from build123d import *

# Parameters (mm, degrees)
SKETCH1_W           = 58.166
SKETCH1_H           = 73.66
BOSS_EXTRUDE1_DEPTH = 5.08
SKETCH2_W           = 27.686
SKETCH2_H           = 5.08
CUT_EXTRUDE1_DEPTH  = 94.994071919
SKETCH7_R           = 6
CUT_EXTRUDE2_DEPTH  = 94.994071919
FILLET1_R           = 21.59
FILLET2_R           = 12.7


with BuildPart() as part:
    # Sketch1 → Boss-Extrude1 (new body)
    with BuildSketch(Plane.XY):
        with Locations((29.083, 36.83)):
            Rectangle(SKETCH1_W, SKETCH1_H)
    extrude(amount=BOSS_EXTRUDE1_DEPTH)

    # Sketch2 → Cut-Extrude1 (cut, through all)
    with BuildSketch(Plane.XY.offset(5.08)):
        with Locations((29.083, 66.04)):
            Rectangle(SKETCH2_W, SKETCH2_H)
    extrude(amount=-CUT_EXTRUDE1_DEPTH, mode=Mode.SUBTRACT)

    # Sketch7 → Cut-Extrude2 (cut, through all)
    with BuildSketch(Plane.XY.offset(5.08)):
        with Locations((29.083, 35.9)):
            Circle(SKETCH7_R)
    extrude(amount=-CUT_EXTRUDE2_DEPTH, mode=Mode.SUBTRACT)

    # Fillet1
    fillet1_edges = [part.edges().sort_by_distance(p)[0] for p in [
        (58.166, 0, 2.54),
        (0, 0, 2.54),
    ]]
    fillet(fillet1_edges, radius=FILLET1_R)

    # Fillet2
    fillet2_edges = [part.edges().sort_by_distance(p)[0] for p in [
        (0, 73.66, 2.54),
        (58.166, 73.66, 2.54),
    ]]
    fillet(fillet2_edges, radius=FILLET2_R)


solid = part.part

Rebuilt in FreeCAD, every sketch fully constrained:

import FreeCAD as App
import Part
import Sketcher

V = App.Vector
Q = App.Units.Quantity


def edges_at(feature, points):
    """Names of the edges that pass closest to the given points."""
    edges = feature.Shape.Edges
    near = lambda p: min(range(len(edges)), key=lambda i: edges[i].distToShape(Part.Vertex(*p))[0])
    return sorted({f"Edge{near(p) + 1}" for p in points})


def add_polygon(sketch, points):
    """Adds a closed chain of lines whose ends are joined by coincident constraints."""
    first, n = sketch.GeometryCount, len(points)
    for a, b in zip(points, points[1:] + points[:1]):
        sketch.addGeometry(Part.LineSegment(App.Vector(*a, 0), App.Vector(*b, 0)), False)
    for i in range(n):
        sketch.addConstraint(Sketcher.Constraint("Coincident", first + i, 2, first + (i + 1) % n, 1))

doc = App.newDocument("Part")
body = doc.addObject("PartDesign::Body", "Body")

sketch1 = body.newObject("Sketcher::SketchObject", "Sketch")
sketch1.AttachmentSupport = (doc.getObject("XY_Plane"), [""])
sketch1.MapMode = "FlatFace"
add_polygon(sketch1, [(0, 73.66), (0, 0), (58.166, 0), (58.166, 73.66)])
sketch1.addConstraint(Sketcher.Constraint("Vertical", 0))
sketch1.addConstraint(Sketcher.Constraint("Horizontal", 1))
sketch1.addConstraint(Sketcher.Constraint("Vertical", 2))
sketch1.addConstraint(Sketcher.Constraint("Horizontal", 3))
sketch1.addConstraint(Sketcher.Constraint("Coincident", 0, 2, -1, 1))
sketch1.addConstraint(Sketcher.Constraint("DistanceY", 0, 2, 0, 1, Q("2.9 in")))
sketch1.addConstraint(Sketcher.Constraint("DistanceX", 1, 1, 1, 2, Q("2.29 in")))
pad1 = body.newObject("PartDesign::Pad", "Pad")
pad1.Profile = sketch1
pad1.Length = Q("0.2 in")

sketch2 = body.newObject("Sketcher::SketchObject", "Sketch001")
sketch2.AttachmentSupport = (doc.getObject("XY_Plane"), [""])
sketch2.MapMode = "FlatFace"
sketch2.AttachmentOffset = App.Placement(V(0, 0, 0.2 * 25.4), App.Rotation())
add_polygon(sketch2, [(15.24, 68.58), (15.24, 63.5), (42.926, 63.5), (42.926, 68.58)])
sketch2.addConstraint(Sketcher.Constraint("Vertical", 0))
sketch2.addConstraint(Sketcher.Constraint("Horizontal", 1))
sketch2.addConstraint(Sketcher.Constraint("Vertical", 2))
sketch2.addConstraint(Sketcher.Constraint("Horizontal", 3))
sketch2.addConstraint(Sketcher.Constraint("DistanceY", 0, 2, 0, 1, Q("0.2 in")))
sketch2.addConstraint(Sketcher.Constraint("DistanceX", 1, 1, 1, 2, Q("1.09 in")))
sketch2.addConstraint(Sketcher.Constraint("DistanceX", -1, 1, 0, 2, Q("0.6 in")))
sketch2.addConstraint(Sketcher.Constraint("DistanceY", -1, 1, 0, 2, Q("2.5 in")))
pocket1 = body.newObject("PartDesign::Pocket", "Pocket")
pocket1.Profile = sketch2
pocket1.Type = "ThroughAll"

sketch3 = body.newObject("Sketcher::SketchObject", "Sketch002")
sketch3.AttachmentSupport = (doc.getObject("XY_Plane"), [""])
sketch3.MapMode = "FlatFace"
sketch3.AttachmentOffset = App.Placement(V(0, 0, 0.2 * 25.4), App.Rotation())
sketch3.addGeometry(Part.Circle(V(29.083, 35.9, 0), V(0, 0, 1), 6), False)
sketch3.addConstraint(Sketcher.Constraint("Diameter", 0, Q("12 mm")))
sketch3.addConstraint(Sketcher.Constraint("DistanceX", -1, 1, 0, 3, Q("1.145 in")))
sketch3.addConstraint(Sketcher.Constraint("DistanceY", -1, 1, 0, 3, Q("35.9 mm")))
pocket2 = body.newObject("PartDesign::Pocket", "Pocket001")
pocket2.Profile = sketch3
pocket2.Type = "ThroughAll"
doc.recompute()

fillet = body.newObject("PartDesign::Fillet", "Fillet")
fillet.Base = (pocket2, edges_at(pocket2, [(58.166, 0, 2.54), (0, 0, 2.54)]))
fillet.Radius = Q("0.85 in")
doc.recompute()

fillet2 = body.newObject("PartDesign::Fillet", "Fillet001")
fillet2.Base = (fillet, edges_at(fillet, [(0, 73.66, 2.54), (58.166, 73.66, 2.54)]))
fillet2.Radius = Q("0.5 in")

doc.recompute()
